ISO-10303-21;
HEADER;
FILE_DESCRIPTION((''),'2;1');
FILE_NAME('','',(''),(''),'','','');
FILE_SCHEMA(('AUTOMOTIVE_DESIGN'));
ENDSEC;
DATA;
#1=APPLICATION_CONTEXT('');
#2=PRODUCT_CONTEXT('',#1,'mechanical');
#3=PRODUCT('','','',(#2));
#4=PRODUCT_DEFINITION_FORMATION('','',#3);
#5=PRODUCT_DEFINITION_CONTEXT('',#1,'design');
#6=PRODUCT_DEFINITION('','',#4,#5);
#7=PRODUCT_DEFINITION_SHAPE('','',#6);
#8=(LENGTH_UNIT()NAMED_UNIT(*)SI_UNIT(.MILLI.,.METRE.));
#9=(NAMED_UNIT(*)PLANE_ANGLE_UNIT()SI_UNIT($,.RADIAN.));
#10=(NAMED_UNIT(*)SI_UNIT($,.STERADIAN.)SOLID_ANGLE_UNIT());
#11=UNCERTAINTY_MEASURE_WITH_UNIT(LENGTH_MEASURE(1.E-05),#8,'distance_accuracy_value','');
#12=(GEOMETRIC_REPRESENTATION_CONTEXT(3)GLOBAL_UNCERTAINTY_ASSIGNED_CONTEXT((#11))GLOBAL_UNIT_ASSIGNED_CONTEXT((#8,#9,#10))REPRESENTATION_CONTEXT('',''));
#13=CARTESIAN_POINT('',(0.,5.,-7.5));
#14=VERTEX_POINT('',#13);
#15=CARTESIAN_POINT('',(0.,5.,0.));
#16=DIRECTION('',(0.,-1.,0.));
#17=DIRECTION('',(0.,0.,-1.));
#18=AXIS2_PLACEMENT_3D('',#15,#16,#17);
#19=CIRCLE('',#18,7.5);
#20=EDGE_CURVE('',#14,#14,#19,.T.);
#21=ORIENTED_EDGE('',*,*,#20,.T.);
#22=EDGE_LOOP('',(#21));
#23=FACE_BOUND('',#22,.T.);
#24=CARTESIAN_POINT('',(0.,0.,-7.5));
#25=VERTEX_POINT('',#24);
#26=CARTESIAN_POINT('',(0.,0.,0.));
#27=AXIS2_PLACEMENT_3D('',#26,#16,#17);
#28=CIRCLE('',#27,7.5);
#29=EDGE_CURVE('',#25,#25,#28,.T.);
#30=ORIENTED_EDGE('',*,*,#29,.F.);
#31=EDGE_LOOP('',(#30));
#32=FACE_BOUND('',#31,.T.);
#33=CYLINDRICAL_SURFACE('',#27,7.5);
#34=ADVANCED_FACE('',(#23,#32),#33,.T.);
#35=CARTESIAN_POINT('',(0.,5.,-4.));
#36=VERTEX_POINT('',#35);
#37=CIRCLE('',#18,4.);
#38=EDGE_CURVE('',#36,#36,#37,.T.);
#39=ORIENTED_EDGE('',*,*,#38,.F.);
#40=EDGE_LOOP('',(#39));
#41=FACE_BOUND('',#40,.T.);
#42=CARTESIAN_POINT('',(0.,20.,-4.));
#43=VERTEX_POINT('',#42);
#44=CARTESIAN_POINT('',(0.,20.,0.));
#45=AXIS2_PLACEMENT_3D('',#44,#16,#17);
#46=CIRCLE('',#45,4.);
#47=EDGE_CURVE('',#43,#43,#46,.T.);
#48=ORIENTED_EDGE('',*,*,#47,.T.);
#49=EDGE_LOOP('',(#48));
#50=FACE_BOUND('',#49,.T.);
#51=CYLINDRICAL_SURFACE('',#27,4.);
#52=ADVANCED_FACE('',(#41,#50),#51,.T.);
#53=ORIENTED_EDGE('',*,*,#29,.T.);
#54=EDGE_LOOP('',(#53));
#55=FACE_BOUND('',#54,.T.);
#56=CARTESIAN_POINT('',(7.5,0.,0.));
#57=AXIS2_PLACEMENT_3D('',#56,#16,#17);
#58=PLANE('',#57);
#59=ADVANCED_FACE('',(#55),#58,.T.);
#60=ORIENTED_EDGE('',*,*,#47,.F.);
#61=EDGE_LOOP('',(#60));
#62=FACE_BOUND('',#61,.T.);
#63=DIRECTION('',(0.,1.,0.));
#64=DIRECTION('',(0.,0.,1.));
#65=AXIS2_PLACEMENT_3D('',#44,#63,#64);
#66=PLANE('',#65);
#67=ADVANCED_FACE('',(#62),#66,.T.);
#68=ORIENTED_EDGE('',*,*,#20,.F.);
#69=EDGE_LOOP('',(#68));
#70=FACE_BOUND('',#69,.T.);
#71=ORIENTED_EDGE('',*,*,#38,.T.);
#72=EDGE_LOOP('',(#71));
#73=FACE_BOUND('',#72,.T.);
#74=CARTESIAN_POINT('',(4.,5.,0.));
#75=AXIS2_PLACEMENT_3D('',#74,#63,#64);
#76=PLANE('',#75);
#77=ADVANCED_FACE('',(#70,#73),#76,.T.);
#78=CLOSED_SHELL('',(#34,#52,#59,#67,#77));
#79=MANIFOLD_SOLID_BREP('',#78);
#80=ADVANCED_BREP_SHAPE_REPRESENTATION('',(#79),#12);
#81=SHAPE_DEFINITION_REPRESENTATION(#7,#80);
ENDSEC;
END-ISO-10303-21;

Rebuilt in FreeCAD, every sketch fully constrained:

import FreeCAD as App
import Part
import Sketcher


def add_polygon(sketch, points):
    """Adds a closed chain of lines whose ends are joined by coincident constraints."""
    first, n = sketch.GeometryCount, len(points)
    for a, b in zip(points, points[1:] + points[:1]):
        sketch.addGeometry(Part.LineSegment(App.Vector(*a, 0), App.Vector(*b, 0)), False)
    for i in range(n):
        sketch.addConstraint(Sketcher.Constraint("Coincident", first + i, 2, first + (i + 1) % n, 1))

doc = App.newDocument("Part")
body = doc.addObject("PartDesign::Body", "Body")

# Sketch on XY plane
sketch1 = doc.addObject("Sketcher::SketchObject", "Sketch")
body.addObject(sketch1)
sketch1.AttachmentSupport = (doc.XY_Plane, [""])
sketch1.MapMode = "FlatFace"
add_polygon(sketch1, [(0, 20), (0, 0), (7.5, 0), (7.5, 5), (4, 5), (4, 20)])  # lines 0-5
sketch1.addConstraint(Sketcher.Constraint("Vertical", 0))
sketch1.addConstraint(Sketcher.Constraint("Horizontal", 1))
sketch1.addConstraint(Sketcher.Constraint("Vertical", 2))
sketch1.addConstraint(Sketcher.Constraint("Horizontal", 3))
sketch1.addConstraint(Sketcher.Constraint("Vertical", 4))
sketch1.addConstraint(Sketcher.Constraint("Horizontal", 5))
sketch1.addConstraint(Sketcher.Constraint("Coincident", 0, 2, -1, 1))
sketch1.addConstraint(Sketcher.Constraint("DistanceX", 5, 2, 5, 1, 4.0))
sketch1.addConstraint(Sketcher.Constraint("DistanceY", 0, 2, 0, 1, 20.0))
sketch1.addConstraint(Sketcher.Constraint("DistanceY", 2, 1, 2, 2, 5.0))
sketch1.addConstraint(Sketcher.Constraint("DistanceX", 1, 1, 1, 2, 7.5))
revolution = doc.addObject("PartDesign::Revolution", "Revolution")
body.addObject(revolution)
revolution.Profile = sketch1
revolution.ReferenceAxis = (sketch1, ["V_Axis"])
revolution.Angle = 360

doc.recompute()
